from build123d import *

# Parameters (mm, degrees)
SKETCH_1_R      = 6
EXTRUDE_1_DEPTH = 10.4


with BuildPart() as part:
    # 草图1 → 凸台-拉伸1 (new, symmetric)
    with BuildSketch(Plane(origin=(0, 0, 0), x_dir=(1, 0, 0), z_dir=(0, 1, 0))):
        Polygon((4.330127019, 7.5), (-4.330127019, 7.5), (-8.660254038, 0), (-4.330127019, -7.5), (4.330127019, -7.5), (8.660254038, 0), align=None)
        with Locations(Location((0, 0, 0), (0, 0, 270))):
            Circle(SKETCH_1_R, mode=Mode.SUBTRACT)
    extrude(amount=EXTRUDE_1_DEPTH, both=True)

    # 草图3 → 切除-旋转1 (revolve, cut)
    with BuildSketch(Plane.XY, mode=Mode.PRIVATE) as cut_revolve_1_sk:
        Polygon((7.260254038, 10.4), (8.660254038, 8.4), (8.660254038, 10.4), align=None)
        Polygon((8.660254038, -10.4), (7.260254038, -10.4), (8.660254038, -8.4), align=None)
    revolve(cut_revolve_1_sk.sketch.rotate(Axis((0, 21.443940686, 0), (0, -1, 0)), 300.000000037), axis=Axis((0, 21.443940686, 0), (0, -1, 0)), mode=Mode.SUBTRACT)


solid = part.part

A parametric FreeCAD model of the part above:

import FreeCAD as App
import Part
import Sketcher
from FreeCAD import Vector
Q = App.Units.Quantity

doc = App.newDocument("Part")
params = doc.addObject("Spreadsheet::Sheet", "Params")
for row, (alias, value) in enumerate([
    ("sketch1_diameter", "12 mm"),
    ("pad1_length", "20.8 mm"),
    ("sketch2_height", "2 mm"),
    ("sketch2_width", "1.4 mm"),
    ("groove_angle", "360 deg"),
], start=1):
    params.set(f"A{row}", alias)
    params.set(f"B{row}", "=" + value)
    params.setAlias(f"B{row}", alias)

body = doc.addObject("PartDesign::Body", "Body")

# Sketch on XZ plane
sketch1 = body.newObject("Sketcher::SketchObject", "Sketch")
sketch1.AttachmentSupport = (doc.getObject("XZ_Plane"), [""])
sketch1.MapMode = "FlatFace"
sketch1.addGeometry([
    Part.LineSegment(Vector(4.330127, -7.5, 0), Vector(-4.330127, -7.5, 0)),  # 0
    Part.LineSegment(Vector(-4.330127, -7.5, 0), Vector(-8.660254, 0, 0)),  # 1
    Part.LineSegment(Vector(-8.660254, 0, 0), Vector(-4.330127, 7.5, 0)),  # 2
    Part.LineSegment(Vector(-4.330127, 7.5, 0), Vector(4.330127, 7.5, 0)),  # 3
    Part.LineSegment(Vector(4.330127, 7.5, 0), Vector(8.660254, 0, 0)),  # 4
    Part.LineSegment(Vector(8.660254, 0, 0), Vector(4.330127, -7.5, 0)),  # 5
    Part.Circle(Vector(0, 0, 0), Vector(0, 0, 1), 6),  # 6
], False)
sketch1.addConstraint([
    Sketcher.Constraint("Coincident", 0, 2, 1, 1),
    Sketcher.Constraint("Coincident", 1, 2, 2, 1),
    Sketcher.Constraint("Coincident", 2, 2, 3, 1),
    Sketcher.Constraint("Coincident", 3, 2, 4, 1),
    Sketcher.Constraint("Coincident", 4, 2, 5, 1),
    Sketcher.Constraint("Coincident", 5, 2, 0, 1),
    Sketcher.Constraint("Horizontal", 0),
    Sketcher.Constraint("Horizontal", 3),
    Sketcher.Constraint("Coincident", 6, 3, -1, 1),
    Sketcher.Constraint("Symmetric", 0, 2, 3, 2, -1, 1),
    Sketcher.Constraint("Symmetric", 1, 2, 4, 2, -1, 1),
    Sketcher.Constraint("PointOnObject", 1, 2, -1),
    Sketcher.Constraint("Parallel", 2, 5),
    Sketcher.Constraint("Vertical", 0, 2, 2, 2),
    Sketcher.Constraint("Diameter", 6, 12.0),
    Sketcher.Constraint("Angle", 1, Q("120 deg")),
    Sketcher.Constraint("DistanceY", 0, 2, 2, 2, 15.0),
    Sketcher.Constraint("DistanceX", 0, 2, 0, 1, 8.660254),
])
sketch1.setExpression("Constraints[14]", "Params.sketch1_diameter")
pad1 = body.newObject("PartDesign::Pad", "Pad")
pad1.Profile = sketch1
pad1.setExpression("Length", "Params.pad1_length")
pad1.Midplane = True

# Sketch on XY plane
sketch2 = body.newObject("Sketcher::SketchObject", "Sketch001")
sketch2.AttachmentSupport = (doc.getObject("XY_Plane"), [""])
sketch2.MapMode = "FlatFace"
sketch2.addGeometry([
    Part.LineSegment(Vector(7.260254, 10.4, 0), Vector(8.660254, 8.4, 0)),  # 0
    Part.LineSegment(Vector(8.660254, 8.4, 0), Vector(8.660254, 10.4, 0)),  # 1
    Part.LineSegment(Vector(8.660254, 10.4, 0), Vector(7.260254, 10.4, 0)),  # 2
    Part.LineSegment(Vector(7.260254, -10.4, 0), Vector(8.660254, -10.4, 0)),  # 3
    Part.LineSegment(Vector(8.660254, -10.4, 0), Vector(8.660254, -8.4, 0)),  # 4
    Part.LineSegment(Vector(8.660254, -8.4, 0), Vector(7.260254, -10.4, 0)),  # 5
], False)
sketch2.addConstraint([
    Sketcher.Constraint("Coincident", 0, 2, 1, 1),
    Sketcher.Constraint("Coincident", 1, 2, 2, 1),
    Sketcher.Constraint("Coincident", 2, 2, 0, 1),
    Sketcher.Constraint("Coincident", 3, 2, 4, 1),
    Sketcher.Constraint("Coincident", 4, 2, 5, 1),
    Sketcher.Constraint("Coincident", 5, 2, 3, 1),
    Sketcher.Constraint("Vertical", 1),
    Sketcher.Constraint("Horizontal", 2),
    Sketcher.Constraint("Horizontal", 3),
    Sketcher.Constraint("Vertical", 4),
    Sketcher.Constraint("Symmetric", 1, 2, 3, 2, -1),
    Sketcher.Constraint("Vertical", 2, 2, 5, 2),
    Sketcher.Constraint("Equal", 1, 4),
    Sketcher.Constraint("DistanceY", 1, 1, 1, 2, 2.0),
    Sketcher.Constraint("DistanceX", 2, 2, 2, 1, 1.4),
    Sketcher.Constraint("DistanceY", -1, 1, 0, 2, 8.4),
    Sketcher.Constraint("DistanceX", -1, 1, 0, 2, 8.660254),
])
sketch2.setExpression("Constraints[13]", "Params.sketch2_height")
sketch2.setExpression("Constraints[14]", "Params.sketch2_width")
groove = body.newObject("PartDesign::Groove", "Groove")
groove.Profile = sketch2
groove.ReferenceAxis = (sketch2, ["V_Axis"])
groove.setExpression("Angle", "Params.groove_angle")

doc.recompute()
